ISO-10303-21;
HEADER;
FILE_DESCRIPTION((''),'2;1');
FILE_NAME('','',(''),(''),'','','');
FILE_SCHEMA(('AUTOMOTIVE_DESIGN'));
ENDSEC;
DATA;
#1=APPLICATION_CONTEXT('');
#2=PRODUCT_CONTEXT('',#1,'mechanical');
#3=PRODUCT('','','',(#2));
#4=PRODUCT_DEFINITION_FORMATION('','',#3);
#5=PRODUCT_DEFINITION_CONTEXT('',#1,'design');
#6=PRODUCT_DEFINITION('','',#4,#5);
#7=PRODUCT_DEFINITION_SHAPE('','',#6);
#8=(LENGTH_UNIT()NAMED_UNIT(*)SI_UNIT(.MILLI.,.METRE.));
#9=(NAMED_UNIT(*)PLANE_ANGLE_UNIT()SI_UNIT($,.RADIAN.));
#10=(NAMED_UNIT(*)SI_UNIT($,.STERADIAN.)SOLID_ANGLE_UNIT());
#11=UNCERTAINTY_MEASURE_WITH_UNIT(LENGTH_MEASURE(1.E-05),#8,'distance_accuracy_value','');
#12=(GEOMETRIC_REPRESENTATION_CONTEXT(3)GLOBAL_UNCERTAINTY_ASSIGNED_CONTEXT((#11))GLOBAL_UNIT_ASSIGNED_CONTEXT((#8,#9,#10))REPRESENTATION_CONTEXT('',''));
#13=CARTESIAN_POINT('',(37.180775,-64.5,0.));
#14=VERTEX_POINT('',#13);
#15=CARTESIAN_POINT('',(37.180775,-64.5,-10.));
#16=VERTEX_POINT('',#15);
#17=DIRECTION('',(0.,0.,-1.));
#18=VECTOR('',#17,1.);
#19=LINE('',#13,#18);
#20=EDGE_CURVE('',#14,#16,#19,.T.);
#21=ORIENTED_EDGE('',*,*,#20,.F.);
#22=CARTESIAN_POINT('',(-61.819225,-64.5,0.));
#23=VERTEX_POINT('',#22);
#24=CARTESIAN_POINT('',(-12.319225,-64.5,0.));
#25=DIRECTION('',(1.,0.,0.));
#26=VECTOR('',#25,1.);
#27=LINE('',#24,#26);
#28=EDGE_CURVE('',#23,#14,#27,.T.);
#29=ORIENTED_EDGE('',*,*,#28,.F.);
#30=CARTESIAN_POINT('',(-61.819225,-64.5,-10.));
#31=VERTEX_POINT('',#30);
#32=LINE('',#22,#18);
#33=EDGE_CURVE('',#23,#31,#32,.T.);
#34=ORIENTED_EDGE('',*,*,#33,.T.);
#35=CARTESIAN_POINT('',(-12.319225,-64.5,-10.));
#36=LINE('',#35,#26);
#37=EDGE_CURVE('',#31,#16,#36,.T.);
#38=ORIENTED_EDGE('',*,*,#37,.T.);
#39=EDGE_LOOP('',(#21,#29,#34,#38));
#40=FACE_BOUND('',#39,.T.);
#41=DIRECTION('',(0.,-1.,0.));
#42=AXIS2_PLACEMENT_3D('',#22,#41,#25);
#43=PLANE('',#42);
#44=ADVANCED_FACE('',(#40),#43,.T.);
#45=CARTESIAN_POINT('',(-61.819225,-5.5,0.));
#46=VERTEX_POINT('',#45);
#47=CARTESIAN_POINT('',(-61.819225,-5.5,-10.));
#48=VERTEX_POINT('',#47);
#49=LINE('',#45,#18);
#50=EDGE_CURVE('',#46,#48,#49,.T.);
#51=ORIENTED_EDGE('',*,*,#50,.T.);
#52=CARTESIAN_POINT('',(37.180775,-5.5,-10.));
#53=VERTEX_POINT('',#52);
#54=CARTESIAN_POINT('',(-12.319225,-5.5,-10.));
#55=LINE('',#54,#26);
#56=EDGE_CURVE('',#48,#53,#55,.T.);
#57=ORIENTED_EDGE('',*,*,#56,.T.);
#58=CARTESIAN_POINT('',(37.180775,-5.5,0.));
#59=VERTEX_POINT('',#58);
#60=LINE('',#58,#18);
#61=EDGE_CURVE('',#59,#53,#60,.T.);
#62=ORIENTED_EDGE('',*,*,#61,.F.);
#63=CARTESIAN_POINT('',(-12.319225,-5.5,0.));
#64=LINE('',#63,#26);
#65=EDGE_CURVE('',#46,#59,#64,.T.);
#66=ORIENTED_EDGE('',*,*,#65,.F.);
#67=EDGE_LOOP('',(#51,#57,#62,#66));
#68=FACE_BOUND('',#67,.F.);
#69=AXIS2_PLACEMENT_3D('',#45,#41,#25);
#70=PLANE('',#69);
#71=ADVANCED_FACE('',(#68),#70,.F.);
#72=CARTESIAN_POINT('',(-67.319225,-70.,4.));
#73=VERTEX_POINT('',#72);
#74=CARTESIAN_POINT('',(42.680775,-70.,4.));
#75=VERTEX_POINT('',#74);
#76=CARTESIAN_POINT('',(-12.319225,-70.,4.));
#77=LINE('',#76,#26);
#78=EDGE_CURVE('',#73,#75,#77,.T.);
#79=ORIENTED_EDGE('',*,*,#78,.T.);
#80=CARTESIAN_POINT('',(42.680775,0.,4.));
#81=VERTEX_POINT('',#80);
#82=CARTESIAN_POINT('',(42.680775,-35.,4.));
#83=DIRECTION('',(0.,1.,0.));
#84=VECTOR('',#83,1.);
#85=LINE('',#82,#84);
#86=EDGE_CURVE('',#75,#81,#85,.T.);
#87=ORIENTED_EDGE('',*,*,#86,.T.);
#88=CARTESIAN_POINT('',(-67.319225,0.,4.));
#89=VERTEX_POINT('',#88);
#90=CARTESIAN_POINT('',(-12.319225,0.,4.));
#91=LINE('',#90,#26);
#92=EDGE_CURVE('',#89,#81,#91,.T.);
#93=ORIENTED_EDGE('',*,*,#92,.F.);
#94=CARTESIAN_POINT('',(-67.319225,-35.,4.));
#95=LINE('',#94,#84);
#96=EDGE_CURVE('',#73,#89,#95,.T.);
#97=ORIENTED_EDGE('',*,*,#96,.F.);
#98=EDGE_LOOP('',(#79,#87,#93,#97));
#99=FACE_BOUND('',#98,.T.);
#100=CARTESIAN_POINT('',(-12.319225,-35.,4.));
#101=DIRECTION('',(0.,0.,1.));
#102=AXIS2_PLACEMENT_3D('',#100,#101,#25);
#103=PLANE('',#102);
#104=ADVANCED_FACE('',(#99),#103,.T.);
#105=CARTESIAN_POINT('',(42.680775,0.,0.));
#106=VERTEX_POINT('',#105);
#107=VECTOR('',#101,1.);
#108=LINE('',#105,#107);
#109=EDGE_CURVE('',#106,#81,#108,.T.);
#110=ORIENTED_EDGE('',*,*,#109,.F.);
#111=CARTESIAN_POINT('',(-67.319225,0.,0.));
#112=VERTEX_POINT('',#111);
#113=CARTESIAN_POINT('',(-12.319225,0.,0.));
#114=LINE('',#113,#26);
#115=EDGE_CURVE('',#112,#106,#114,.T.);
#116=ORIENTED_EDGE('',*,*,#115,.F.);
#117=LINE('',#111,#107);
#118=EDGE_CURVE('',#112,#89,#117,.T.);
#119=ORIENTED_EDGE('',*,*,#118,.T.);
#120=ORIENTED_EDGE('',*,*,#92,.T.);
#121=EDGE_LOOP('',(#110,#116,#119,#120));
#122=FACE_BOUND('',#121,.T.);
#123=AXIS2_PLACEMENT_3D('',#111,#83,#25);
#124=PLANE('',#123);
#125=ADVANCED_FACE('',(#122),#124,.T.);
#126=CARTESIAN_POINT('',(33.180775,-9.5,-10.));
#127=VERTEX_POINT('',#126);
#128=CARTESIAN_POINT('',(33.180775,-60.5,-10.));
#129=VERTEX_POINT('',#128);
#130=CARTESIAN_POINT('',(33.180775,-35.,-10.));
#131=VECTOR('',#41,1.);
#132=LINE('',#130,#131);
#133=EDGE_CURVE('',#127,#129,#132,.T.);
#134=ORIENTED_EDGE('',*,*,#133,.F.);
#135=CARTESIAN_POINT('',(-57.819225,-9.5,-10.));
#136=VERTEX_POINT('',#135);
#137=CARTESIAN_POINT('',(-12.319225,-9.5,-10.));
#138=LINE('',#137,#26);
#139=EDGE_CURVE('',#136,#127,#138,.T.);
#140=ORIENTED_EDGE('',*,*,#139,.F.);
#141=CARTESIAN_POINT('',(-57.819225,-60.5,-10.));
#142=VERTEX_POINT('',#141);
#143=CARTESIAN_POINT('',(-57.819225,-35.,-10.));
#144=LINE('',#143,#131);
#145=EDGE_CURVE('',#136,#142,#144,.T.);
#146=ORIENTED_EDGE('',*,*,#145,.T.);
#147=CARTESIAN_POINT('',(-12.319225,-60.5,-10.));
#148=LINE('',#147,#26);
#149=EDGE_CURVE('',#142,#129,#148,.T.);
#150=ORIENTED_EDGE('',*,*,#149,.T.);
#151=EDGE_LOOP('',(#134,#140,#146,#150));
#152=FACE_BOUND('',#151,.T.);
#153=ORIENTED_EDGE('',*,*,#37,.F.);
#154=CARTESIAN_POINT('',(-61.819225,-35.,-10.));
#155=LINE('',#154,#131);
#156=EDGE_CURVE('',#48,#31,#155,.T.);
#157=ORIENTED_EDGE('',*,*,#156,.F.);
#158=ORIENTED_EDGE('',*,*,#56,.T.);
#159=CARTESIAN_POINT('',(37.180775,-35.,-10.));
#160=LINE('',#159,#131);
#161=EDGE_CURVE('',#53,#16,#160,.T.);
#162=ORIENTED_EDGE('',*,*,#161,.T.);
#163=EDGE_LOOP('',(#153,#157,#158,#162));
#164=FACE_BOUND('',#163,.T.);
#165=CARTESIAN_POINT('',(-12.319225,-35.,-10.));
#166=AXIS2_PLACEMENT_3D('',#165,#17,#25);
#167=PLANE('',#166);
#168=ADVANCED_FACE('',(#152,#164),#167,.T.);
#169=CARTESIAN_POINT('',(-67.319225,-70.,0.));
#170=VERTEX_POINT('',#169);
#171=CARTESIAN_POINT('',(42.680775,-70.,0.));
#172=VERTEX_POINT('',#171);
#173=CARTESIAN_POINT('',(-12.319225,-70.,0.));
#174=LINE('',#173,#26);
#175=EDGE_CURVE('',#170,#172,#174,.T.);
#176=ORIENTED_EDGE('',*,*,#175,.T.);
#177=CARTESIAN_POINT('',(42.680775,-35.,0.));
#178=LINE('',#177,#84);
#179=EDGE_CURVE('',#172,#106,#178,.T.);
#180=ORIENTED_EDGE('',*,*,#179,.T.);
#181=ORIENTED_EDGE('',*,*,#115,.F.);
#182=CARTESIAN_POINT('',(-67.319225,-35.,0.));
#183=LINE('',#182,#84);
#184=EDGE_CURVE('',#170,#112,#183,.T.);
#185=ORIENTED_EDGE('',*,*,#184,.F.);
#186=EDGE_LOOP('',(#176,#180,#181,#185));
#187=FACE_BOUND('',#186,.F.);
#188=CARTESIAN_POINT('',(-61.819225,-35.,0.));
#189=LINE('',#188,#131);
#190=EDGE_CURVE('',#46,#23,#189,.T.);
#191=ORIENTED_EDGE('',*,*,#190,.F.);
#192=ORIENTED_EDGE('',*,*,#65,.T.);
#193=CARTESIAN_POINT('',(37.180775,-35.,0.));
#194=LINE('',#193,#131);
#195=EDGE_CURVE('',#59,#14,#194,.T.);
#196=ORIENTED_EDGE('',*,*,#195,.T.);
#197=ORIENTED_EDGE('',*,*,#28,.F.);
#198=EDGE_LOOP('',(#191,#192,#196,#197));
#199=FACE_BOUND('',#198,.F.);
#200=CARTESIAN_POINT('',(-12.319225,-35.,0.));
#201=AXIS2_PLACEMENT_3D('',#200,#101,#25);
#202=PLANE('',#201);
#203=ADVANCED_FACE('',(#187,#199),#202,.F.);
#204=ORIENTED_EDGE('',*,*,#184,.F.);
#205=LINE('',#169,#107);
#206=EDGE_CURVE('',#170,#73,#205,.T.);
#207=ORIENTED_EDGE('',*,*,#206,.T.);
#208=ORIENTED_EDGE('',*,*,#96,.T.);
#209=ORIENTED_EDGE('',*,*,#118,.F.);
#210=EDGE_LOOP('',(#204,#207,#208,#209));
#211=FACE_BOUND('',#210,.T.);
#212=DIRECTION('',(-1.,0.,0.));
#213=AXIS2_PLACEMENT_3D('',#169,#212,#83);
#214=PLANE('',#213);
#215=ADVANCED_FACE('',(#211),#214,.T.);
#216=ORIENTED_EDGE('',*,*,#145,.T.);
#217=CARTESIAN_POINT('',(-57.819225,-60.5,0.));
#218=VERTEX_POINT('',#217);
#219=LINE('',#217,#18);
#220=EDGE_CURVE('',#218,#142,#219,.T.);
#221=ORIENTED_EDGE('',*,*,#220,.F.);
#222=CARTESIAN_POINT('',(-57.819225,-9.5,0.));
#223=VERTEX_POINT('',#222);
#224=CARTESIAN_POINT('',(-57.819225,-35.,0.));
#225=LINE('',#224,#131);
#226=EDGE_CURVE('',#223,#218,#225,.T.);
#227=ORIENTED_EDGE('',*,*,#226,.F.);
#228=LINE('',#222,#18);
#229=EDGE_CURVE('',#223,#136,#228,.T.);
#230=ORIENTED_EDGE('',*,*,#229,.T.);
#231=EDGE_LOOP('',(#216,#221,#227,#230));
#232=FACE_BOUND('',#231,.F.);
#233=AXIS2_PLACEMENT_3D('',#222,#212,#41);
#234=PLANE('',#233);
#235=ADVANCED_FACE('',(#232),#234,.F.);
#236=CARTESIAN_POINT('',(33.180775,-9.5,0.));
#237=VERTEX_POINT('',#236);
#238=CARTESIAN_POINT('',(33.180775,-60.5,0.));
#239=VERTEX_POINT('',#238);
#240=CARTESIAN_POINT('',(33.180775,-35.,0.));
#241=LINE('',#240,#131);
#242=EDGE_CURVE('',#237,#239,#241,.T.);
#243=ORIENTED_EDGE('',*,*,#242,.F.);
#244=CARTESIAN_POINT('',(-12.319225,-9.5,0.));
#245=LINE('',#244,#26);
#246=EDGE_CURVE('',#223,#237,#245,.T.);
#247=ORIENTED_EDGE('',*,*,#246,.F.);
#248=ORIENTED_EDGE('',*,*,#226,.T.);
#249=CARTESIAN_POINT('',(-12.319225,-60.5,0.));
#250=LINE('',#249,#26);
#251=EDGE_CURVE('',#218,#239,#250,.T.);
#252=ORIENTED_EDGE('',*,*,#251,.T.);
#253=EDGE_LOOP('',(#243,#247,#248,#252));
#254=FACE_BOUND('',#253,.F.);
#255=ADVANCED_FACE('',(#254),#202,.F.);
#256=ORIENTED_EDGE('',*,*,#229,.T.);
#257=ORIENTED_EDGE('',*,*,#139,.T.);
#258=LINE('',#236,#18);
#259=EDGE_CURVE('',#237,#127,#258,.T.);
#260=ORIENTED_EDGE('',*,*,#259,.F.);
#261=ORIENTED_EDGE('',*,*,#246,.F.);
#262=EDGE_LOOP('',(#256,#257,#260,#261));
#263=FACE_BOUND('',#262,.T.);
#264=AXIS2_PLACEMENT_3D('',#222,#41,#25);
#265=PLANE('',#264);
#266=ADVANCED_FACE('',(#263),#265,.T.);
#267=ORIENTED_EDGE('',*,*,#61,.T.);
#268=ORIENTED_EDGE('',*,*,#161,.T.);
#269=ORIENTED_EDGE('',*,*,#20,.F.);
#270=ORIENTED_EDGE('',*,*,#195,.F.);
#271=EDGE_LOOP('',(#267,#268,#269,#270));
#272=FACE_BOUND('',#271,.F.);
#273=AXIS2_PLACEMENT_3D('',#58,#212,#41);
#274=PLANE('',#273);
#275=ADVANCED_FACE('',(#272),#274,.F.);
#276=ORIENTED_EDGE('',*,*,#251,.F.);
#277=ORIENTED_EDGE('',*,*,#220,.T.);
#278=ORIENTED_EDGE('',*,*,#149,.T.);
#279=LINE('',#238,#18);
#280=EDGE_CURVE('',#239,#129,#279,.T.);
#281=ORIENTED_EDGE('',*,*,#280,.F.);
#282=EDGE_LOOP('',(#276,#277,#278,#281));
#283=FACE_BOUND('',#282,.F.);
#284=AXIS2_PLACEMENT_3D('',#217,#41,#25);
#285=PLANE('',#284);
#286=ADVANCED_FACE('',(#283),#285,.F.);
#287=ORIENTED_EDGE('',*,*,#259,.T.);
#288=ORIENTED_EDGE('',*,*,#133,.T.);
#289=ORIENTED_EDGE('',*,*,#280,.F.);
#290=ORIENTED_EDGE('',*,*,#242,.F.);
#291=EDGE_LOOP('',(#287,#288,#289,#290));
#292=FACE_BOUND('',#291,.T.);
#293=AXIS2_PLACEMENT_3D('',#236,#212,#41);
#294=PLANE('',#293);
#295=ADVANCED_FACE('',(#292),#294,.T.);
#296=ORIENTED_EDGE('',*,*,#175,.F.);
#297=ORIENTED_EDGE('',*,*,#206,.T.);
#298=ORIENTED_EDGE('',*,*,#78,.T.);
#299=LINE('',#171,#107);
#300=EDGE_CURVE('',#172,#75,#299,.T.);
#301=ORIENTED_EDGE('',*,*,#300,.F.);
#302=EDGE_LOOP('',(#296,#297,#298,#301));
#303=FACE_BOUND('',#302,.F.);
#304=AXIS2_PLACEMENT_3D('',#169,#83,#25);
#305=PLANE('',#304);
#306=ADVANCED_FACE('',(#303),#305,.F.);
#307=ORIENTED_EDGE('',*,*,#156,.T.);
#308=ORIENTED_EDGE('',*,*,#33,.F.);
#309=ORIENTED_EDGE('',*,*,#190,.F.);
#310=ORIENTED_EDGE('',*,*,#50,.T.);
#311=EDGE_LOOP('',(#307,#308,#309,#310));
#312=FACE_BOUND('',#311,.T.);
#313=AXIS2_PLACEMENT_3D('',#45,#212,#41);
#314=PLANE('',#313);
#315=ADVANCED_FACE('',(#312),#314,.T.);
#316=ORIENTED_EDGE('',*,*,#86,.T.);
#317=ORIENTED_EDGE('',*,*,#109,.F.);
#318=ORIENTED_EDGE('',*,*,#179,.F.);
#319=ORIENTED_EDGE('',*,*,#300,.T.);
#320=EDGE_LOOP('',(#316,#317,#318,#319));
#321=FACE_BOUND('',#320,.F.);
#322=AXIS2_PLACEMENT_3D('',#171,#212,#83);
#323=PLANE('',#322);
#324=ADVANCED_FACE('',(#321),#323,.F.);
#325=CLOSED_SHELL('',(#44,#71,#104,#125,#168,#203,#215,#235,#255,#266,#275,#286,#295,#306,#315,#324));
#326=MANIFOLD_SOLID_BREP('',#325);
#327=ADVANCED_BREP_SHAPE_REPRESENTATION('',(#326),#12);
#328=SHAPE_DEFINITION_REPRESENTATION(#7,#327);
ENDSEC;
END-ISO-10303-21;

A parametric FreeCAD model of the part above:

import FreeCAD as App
import Part
import Sketcher

V = App.Vector
Q = App.Units.Quantity

doc = App.newDocument("Part")
params = doc.addObject("Spreadsheet::Sheet", "Params")
for row, (alias, value) in enumerate([
    ("sketch1_width", "110 mm"),
    ("sketch1_height", "70 mm"),
    ("pad1_length", "4 mm"),
    ("sketch2_width", "99 mm"),
    ("sketch2_width2", "91 mm"),
    ("sketch2_height", "59 mm"),
    ("sketch2_height2", "51 mm"),
    ("pad2_length", "10 mm"),
], start=1):
    params.set(f"A{row}", alias)
    params.set(f"B{row}", "=" + value)
    params.setAlias(f"B{row}", alias)

body = doc.addObject("PartDesign::Body", "Body")

# Sketch on XY plane
sketch1 = body.newObject("Sketcher::SketchObject", "Sketch")
sketch1.AttachmentSupport = (doc.getObject("XY_Plane"), [""])
sketch1.MapMode = "FlatFace"
sketch1.addGeometry(Part.LineSegment(V(-67, 0, 0), V(-67, -70, 0)), False)
sketch1.addGeometry(Part.LineSegment(V(-67, -70, 0), V(43, -70, 0)), False)
sketch1.addGeometry(Part.LineSegment(V(43, -70, 0), V(43, 0, 0)), False)
sketch1.addGeometry(Part.LineSegment(V(43, 0, 0), V(-67, 0, 0)), False)
sketch1.addConstraint(Sketcher.Constraint("Coincident", 0, 2, 1, 1))
sketch1.addConstraint(Sketcher.Constraint("Coincident", 1, 2, 2, 1))
sketch1.addConstraint(Sketcher.Constraint("Coincident", 2, 2, 3, 1))
sketch1.addConstraint(Sketcher.Constraint("Coincident", 3, 2, 0, 1))
sketch1.addConstraint(Sketcher.Constraint("Vertical", 0))
sketch1.addConstraint(Sketcher.Constraint("Horizontal", 1))
sketch1.addConstraint(Sketcher.Constraint("Vertical", 2))
sketch1.addConstraint(Sketcher.Constraint("Horizontal", 3))
sketch1.addConstraint(Sketcher.Constraint("PointOnObject", 2, 2, -1))
sketch1.addConstraint(Sketcher.Constraint("DistanceX", 1, 1, 1, 2, Q("110 mm")))
sketch1.addConstraint(Sketcher.Constraint("DistanceY", 0, 2, 0, 1, Q("70 mm")))
sketch1.addConstraint(Sketcher.Constraint("DistanceX", 0, 2, -1, 1, Q("67.319225 mm")))
sketch1.setExpression("Constraints[9]", "Params.sketch1_width")
sketch1.setExpression("Constraints[10]", "Params.sketch1_height")
pad1 = body.newObject("PartDesign::Pad", "Pad")
pad1.Profile = sketch1
pad1.setExpression("Length", "Params.pad1_length")

# Sketch on XY plane
sketch2 = body.newObject("Sketcher::SketchObject", "Sketch001")
sketch2.AttachmentSupport = (doc.getObject("XY_Plane"), [""])
sketch2.MapMode = "FlatFace"
sketch2.addGeometry(Part.LineSegment(V(-62, -64, 0), V(-62, -6, 0)), False)
sketch2.addGeometry(Part.LineSegment(V(-62, -6, 0), V(37, -6, 0)), False)
sketch2.addGeometry(Part.LineSegment(V(37, -6, 0), V(37, -64, 0)), False)
sketch2.addGeometry(Part.LineSegment(V(37, -64, 0), V(-62, -64, 0)), False)
sketch2.addGeometry(Part.LineSegment(V(33, -10, 0), V(-58, -10, 0)), False)
sketch2.addGeometry(Part.LineSegment(V(-58, -10, 0), V(-58, -60, 0)), False)
sketch2.addGeometry(Part.LineSegment(V(-58, -60, 0), V(33, -60, 0)), False)
sketch2.addGeometry(Part.LineSegment(V(33, -60, 0), V(33, -10, 0)), False)
sketch2.addConstraint(Sketcher.Constraint("Coincident", 0, 2, 1, 1))
sketch2.addConstraint(Sketcher.Constraint("Coincident", 1, 2, 2, 1))
sketch2.addConstraint(Sketcher.Constraint("Coincident", 2, 2, 3, 1))
sketch2.addConstraint(Sketcher.Constraint("Coincident", 3, 2, 0, 1))
sketch2.addConstraint(Sketcher.Constraint("Coincident", 4, 2, 5, 1))
sketch2.addConstraint(Sketcher.Constraint("Coincident", 5, 2, 6, 1))
sketch2.addConstraint(Sketcher.Constraint("Coincident", 6, 2, 7, 1))
sketch2.addConstraint(Sketcher.Constraint("Coincident", 7, 2, 4, 1))
sketch2.addConstraint(Sketcher.Constraint("Vertical", 0))
sketch2.addConstraint(Sketcher.Constraint("Horizontal", 1))
sketch2.addConstraint(Sketcher.Constraint("Vertical", 2))
sketch2.addConstraint(Sketcher.Constraint("Horizontal", 3))
sketch2.addConstraint(Sketcher.Constraint("Horizontal", 4))
sketch2.addConstraint(Sketcher.Constraint("Vertical", 5))
sketch2.addConstraint(Sketcher.Constraint("Horizontal", 6))
sketch2.addConstraint(Sketcher.Constraint("Vertical", 7))
sketch2.addConstraint(Sketcher.Constraint("DistanceX", 1, 1, 1, 2, Q("99 mm")))
sketch2.addConstraint(Sketcher.Constraint("DistanceX", 4, 2, 4, 1, Q("91 mm")))
sketch2.addConstraint(Sketcher.Constraint("DistanceY", 0, 1, 0, 2, Q("59 mm")))
sketch2.addConstraint(Sketcher.Constraint("DistanceY", 5, 2, 5, 1, Q("51 mm")))
sketch2.addConstraint(Sketcher.Constraint("DistanceX", 0, 2, 4, 2, Q("4 mm")))
sketch2.addConstraint(Sketcher.Constraint("DistanceY", 4, 2, 0, 2, Q("4 mm")))
sketch2.addConstraint(Sketcher.Constraint("DistanceY", 0, 2, -1, 1, Q("5.5 mm")))
sketch2.addConstraint(Sketcher.Constraint("DistanceX", 0, 2, -1, 1, Q("61.819225 mm")))
sketch2.setExpression("Constraints[16]", "Params.sketch2_width")
sketch2.setExpression("Constraints[17]", "Params.sketch2_width2")
sketch2.setExpression("Constraints[18]", "Params.sketch2_height")
sketch2.setExpression("Constraints[19]", "Params.sketch2_height2")
pad2 = body.newObject("PartDesign::Pad", "Pad001")
pad2.Profile = sketch2
pad2.setExpression("Length", "Params.pad2_length")
pad2.Reversed = True

doc.recompute()
